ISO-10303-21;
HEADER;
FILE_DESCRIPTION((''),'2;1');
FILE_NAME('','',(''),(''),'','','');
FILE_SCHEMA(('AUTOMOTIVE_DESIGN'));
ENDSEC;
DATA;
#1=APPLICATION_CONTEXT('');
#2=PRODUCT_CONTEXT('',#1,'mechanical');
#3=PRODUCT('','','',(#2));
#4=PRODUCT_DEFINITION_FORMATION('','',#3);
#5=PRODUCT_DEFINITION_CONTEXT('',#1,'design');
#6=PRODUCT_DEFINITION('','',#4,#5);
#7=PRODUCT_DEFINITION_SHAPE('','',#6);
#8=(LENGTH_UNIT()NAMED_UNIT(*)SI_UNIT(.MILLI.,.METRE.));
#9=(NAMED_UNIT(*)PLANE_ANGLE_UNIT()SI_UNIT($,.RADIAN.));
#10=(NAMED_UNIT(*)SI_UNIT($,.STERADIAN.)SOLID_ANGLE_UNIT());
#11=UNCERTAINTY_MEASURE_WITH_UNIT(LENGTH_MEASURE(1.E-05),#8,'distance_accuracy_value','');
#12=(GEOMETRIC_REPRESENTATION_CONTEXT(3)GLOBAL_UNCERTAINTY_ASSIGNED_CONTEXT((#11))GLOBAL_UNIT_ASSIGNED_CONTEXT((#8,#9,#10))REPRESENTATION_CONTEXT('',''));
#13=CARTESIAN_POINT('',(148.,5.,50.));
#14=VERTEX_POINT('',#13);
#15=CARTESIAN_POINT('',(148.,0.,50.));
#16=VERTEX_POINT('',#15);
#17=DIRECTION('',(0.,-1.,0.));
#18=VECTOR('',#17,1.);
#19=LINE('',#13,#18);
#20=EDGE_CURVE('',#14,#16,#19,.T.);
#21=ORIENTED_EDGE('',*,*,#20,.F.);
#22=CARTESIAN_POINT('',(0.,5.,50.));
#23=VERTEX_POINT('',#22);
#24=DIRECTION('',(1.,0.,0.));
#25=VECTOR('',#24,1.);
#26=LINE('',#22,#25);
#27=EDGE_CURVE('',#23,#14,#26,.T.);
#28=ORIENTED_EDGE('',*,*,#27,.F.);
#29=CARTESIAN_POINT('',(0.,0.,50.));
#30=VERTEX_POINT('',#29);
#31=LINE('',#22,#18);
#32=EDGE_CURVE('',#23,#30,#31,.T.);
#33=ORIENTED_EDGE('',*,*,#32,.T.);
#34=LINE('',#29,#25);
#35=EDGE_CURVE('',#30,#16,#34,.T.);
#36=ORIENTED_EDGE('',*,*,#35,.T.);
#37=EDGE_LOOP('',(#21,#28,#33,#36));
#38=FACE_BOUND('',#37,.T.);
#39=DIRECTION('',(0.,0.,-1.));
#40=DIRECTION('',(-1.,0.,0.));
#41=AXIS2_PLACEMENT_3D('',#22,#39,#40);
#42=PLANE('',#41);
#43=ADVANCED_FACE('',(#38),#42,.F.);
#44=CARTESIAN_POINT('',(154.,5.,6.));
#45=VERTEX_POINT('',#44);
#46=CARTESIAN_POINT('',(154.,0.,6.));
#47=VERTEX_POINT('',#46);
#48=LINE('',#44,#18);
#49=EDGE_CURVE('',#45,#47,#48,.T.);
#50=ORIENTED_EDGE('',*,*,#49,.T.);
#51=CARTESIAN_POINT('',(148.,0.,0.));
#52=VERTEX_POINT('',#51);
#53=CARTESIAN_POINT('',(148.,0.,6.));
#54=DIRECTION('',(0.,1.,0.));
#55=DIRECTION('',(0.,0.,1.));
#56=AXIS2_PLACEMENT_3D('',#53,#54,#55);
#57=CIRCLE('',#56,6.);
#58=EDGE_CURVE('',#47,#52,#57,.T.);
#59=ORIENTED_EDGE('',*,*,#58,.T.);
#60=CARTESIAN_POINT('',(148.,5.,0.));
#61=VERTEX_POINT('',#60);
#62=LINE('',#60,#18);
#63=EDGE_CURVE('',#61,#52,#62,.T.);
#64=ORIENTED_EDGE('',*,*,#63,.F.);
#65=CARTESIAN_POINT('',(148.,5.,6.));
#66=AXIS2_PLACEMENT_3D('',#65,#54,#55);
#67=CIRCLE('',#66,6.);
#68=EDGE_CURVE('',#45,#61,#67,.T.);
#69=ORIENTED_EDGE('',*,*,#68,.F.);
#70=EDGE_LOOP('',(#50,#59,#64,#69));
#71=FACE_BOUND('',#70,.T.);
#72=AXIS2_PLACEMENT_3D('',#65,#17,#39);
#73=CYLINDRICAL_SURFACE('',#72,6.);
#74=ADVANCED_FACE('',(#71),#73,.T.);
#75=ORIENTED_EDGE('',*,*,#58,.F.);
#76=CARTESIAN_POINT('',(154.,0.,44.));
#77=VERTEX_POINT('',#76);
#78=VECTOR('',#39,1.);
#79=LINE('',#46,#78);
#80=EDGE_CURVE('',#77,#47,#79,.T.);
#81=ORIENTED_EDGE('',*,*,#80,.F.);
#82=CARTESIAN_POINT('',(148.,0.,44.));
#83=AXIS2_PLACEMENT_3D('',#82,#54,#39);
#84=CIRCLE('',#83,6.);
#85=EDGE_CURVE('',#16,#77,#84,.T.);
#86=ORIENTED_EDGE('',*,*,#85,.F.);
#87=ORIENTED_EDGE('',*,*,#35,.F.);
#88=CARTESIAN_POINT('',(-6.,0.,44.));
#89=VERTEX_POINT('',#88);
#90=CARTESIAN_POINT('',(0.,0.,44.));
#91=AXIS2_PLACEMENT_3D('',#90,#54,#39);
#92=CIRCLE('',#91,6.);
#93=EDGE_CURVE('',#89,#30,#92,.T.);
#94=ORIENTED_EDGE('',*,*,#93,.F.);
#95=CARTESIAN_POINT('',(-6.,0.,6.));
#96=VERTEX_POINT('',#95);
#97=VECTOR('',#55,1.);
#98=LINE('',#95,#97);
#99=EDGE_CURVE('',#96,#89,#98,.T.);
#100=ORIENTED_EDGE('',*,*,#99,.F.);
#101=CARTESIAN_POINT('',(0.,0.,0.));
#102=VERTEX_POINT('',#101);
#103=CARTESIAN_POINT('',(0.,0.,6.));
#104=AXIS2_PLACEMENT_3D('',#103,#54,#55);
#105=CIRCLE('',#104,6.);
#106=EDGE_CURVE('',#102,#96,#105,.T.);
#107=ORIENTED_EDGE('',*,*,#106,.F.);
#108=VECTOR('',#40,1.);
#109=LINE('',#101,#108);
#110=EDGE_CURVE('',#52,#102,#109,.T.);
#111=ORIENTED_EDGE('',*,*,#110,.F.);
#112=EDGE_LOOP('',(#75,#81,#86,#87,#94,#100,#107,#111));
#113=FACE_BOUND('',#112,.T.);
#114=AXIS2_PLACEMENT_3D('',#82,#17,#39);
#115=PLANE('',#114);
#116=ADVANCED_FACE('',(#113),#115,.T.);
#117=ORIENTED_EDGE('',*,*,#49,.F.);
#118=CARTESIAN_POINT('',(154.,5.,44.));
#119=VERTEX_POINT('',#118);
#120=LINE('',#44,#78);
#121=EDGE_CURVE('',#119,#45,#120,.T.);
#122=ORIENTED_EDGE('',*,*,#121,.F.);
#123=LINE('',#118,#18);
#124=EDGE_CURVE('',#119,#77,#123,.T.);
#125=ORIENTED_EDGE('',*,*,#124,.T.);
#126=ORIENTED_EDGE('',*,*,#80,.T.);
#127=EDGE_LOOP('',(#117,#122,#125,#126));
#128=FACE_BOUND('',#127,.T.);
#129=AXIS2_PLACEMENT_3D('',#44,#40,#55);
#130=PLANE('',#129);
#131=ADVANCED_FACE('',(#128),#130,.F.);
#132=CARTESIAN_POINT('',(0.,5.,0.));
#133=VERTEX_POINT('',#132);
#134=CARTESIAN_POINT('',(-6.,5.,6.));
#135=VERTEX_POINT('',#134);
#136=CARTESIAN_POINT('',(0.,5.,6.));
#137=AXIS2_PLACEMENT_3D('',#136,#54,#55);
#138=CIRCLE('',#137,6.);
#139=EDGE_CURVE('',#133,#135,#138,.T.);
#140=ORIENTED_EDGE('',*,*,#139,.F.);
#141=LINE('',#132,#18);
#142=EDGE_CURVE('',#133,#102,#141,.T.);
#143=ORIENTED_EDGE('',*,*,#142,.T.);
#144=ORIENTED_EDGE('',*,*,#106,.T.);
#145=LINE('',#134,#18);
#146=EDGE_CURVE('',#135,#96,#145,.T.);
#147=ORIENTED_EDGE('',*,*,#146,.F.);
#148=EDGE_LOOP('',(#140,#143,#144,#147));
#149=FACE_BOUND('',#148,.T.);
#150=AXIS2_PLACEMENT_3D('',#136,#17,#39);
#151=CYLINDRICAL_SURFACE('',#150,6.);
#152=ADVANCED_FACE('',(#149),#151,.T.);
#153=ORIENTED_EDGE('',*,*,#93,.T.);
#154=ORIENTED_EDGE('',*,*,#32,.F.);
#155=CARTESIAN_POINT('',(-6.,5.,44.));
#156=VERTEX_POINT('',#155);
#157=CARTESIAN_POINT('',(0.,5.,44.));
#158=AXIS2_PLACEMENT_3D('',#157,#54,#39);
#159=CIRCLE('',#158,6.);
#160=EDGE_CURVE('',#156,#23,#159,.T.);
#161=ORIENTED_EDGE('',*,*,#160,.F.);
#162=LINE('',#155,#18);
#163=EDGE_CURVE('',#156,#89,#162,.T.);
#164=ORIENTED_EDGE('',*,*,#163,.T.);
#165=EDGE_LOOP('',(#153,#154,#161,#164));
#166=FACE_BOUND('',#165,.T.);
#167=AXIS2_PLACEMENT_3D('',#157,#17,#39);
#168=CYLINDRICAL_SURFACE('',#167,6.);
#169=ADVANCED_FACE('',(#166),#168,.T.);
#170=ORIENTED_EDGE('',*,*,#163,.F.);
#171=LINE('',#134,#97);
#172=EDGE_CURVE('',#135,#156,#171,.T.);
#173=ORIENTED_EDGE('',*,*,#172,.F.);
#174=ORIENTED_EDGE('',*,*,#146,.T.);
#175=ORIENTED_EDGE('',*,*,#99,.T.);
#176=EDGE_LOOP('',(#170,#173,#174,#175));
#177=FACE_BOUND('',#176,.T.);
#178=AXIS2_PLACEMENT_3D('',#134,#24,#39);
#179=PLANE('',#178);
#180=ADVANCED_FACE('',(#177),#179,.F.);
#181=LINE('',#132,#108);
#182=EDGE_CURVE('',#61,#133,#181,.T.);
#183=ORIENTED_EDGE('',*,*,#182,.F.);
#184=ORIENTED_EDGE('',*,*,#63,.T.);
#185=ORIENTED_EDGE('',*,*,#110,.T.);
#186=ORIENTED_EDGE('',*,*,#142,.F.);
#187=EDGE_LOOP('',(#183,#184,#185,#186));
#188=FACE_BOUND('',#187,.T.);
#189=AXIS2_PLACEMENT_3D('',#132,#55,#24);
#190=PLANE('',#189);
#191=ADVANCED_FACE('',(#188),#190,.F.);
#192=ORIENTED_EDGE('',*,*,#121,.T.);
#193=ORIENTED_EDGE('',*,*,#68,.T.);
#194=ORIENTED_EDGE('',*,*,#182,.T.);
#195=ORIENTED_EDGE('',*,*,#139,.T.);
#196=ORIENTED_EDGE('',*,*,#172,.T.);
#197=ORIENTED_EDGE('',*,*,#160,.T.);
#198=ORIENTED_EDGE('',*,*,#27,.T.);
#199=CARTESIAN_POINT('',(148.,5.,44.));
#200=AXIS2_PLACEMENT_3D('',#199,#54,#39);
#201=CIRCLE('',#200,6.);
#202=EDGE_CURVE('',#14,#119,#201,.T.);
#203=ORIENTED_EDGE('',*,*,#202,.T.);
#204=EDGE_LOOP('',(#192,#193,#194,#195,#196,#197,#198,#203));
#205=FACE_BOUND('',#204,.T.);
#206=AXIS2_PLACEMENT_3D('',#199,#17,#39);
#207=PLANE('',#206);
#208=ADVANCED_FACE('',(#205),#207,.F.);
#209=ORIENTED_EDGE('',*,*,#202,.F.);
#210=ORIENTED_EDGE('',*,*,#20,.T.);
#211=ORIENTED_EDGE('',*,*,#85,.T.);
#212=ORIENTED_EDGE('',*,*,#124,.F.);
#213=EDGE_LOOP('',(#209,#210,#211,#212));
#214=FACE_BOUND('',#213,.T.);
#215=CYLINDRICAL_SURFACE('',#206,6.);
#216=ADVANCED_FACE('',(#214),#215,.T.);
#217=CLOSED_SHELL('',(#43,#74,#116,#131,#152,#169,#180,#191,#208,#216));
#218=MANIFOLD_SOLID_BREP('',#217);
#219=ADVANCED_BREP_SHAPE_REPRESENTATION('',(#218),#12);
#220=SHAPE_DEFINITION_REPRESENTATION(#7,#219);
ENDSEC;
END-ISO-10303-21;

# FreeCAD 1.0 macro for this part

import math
import FreeCAD as App
import Part
import Sketcher
from FreeCAD import Vector

doc = App.newDocument("Part")
body = doc.addObject("PartDesign::Body", "Body")

# Sketch on XZ plane
sketch1 = doc.addObject("Sketcher::SketchObject", "Sketch")
body.addObject(sketch1)
sketch1.AttachmentSupport = (doc.XZ_Plane, [""])
sketch1.MapMode = "FlatFace"
sketch1.addGeometry([
    Part.LineSegment(Vector(148, 0, 0), Vector(0, 0, 0)),  # 0
    Part.ArcOfCircle(Part.Circle(Vector(0, 6, 0), Vector(0, 0, 1), 6), math.radians(180), math.radians(270)),  # 1
    Part.LineSegment(Vector(-6, 6, 0), Vector(-6, 44, 0)),  # 2
    Part.ArcOfCircle(Part.Circle(Vector(0, 44, 0), Vector(0, 0, 1), 6), math.radians(90), math.radians(180)),  # 3
    Part.LineSegment(Vector(0, 50, 0), Vector(148, 50, 0)),  # 4
    Part.ArcOfCircle(Part.Circle(Vector(148, 44, 0), Vector(0, 0, 1), 6), math.radians(0), math.radians(90)),  # 5
    Part.LineSegment(Vector(154, 44, 0), Vector(154, 6, 0)),  # 6
    Part.ArcOfCircle(Part.Circle(Vector(148, 6, 0), Vector(0, 0, 1), 6), math.radians(-90), math.radians(0)),  # 7
], False)
sketch1.addConstraint([
    Sketcher.Constraint("Tangent", 0, 2, 1, 2),
    Sketcher.Constraint("Tangent", 1, 1, 2, 1),
    Sketcher.Constraint("Tangent", 2, 2, 3, 2),
    Sketcher.Constraint("Tangent", 3, 1, 4, 1),
    Sketcher.Constraint("Tangent", 4, 2, 5, 2),
    Sketcher.Constraint("Tangent", 5, 1, 6, 1),
    Sketcher.Constraint("Tangent", 6, 2, 7, 2),
    Sketcher.Constraint("Tangent", 7, 1, 0, 1),
    Sketcher.Constraint("Horizontal", 0),
    Sketcher.Constraint("Vertical", 2),
    Sketcher.Constraint("Horizontal", 4),
    Sketcher.Constraint("Vertical", 6),
    Sketcher.Constraint("Coincident", 0, 2, -1, 1),
    Sketcher.Constraint("Equal", 1, 3),
    Sketcher.Constraint("Equal", 3, 5),
    Sketcher.Constraint("Equal", 5, 7),
    Sketcher.Constraint("Radius", 1, 6.0),
    Sketcher.Constraint("DistanceX", 0, 2, 0, 1, 148.0),
    Sketcher.Constraint("DistanceY", 2, 1, 2, 2, 38.0),
])
pad1 = doc.addObject("PartDesign::Pad", "Pad")
body.addObject(pad1)
pad1.Profile = sketch1
pad1.Length = 5
pad1.Reversed = True

doc.recompute()
